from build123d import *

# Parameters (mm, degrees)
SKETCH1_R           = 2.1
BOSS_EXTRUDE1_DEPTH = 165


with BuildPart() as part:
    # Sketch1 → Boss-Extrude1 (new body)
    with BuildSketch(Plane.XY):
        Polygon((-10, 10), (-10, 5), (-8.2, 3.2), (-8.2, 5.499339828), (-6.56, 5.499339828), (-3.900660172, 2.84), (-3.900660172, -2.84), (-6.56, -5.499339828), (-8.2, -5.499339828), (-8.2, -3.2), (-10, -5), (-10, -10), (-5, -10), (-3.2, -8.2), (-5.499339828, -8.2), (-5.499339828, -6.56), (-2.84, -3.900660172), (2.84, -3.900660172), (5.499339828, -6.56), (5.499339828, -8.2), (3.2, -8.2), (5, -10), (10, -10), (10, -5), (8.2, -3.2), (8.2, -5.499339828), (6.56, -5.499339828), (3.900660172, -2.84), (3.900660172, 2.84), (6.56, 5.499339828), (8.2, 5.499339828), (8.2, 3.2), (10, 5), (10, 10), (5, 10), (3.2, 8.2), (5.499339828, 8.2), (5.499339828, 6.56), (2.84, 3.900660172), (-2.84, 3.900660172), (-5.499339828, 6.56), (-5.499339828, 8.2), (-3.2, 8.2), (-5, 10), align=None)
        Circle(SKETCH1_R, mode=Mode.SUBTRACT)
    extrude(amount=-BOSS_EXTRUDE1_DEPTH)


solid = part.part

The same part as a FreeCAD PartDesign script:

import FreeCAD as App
import Part
import Sketcher
Q = App.Units.Quantity


def add_polygon(sketch, points):
    """Adds a closed chain of lines whose ends are joined by coincident constraints."""
    first, n = sketch.GeometryCount, len(points)
    for a, b in zip(points, points[1:] + points[:1]):
        sketch.addGeometry(Part.LineSegment(App.Vector(*a, 0), App.Vector(*b, 0)), False)
    for i in range(n):
        sketch.addConstraint(Sketcher.Constraint("Coincident", first + i, 2, first + (i + 1) % n, 1))

doc = App.newDocument("Part")
body = doc.addObject("PartDesign::Body", "Body")

# Sketch on XY plane
sketch1 = doc.addObject("Sketcher::SketchObject", "Sketch")
body.addObject(sketch1)
sketch1.AttachmentSupport = (doc.XY_Plane, [""])
sketch1.MapMode = "FlatFace"
add_polygon(sketch1, [(-10, 10), (-10, 5), (-8.2, 3.2), (-8.2, 5.49934), (-6.56, 5.49934), (-3.90066, 2.84), (-3.90066, -2.84), (-6.56, -5.49934), (-8.2, -5.49934), (-8.2, -3.2), (-10, -5), (-10, -10), (-5, -10), (-3.2, -8.2), (-5.49934, -8.2), (-5.49934, -6.56), (-2.84, -3.90066), (2.84, -3.90066), (5.49934, -6.56), (5.49934, -8.2), (3.2, -8.2), (5, -10), (10, -10), (10, -5), (8.2, -3.2), (8.2, -5.49934), (6.56, -5.49934), (3.90066, -2.84), (3.90066, 2.84), (6.56, 5.49934), (8.2, 5.49934), (8.2, 3.2), (10, 5), (10, 10), (5, 10), (3.2, 8.2), (5.49934, 8.2), (5.49934, 6.56), (2.84, 3.90066), (-2.84, 3.90066), (-5.49934, 6.56), (-5.49934, 8.2), (-3.2, 8.2), (-5, 10)])  # lines 0-43
sketch1.addGeometry(Part.Circle(App.Vector(0, 0, 0), App.Vector(0, 0, 1), 2.1), False)  # 44
sketch1.addConstraint(Sketcher.Constraint("Vertical", 0))
sketch1.addConstraint(Sketcher.Constraint("Vertical", 2))
sketch1.addConstraint(Sketcher.Constraint("Horizontal", 3))
sketch1.addConstraint(Sketcher.Constraint("Vertical", 5))
sketch1.addConstraint(Sketcher.Constraint("Horizontal", 7))
sketch1.addConstraint(Sketcher.Constraint("Vertical", 8))
sketch1.addConstraint(Sketcher.Constraint("Vertical", 10))
sketch1.addConstraint(Sketcher.Constraint("Horizontal", 11))
sketch1.addConstraint(Sketcher.Constraint("Horizontal", 13))
sketch1.addConstraint(Sketcher.Constraint("Vertical", 14))
sketch1.addConstraint(Sketcher.Constraint("Horizontal", 16))
sketch1.addConstraint(Sketcher.Constraint("Vertical", 18))
sketch1.addConstraint(Sketcher.Constraint("Horizontal", 19))
sketch1.addConstraint(Sketcher.Constraint("Horizontal", 21))
sketch1.addConstraint(Sketcher.Constraint("Vertical", 22))
sketch1.addConstraint(Sketcher.Constraint("Vertical", 24))
sketch1.addConstraint(Sketcher.Constraint("Horizontal", 25))
sketch1.addConstraint(Sketcher.Constraint("Vertical", 27))
sketch1.addConstraint(Sketcher.Constraint("Horizontal", 29))
sketch1.addConstraint(Sketcher.Constraint("Vertical", 30))
sketch1.addConstraint(Sketcher.Constraint("Vertical", 32))
sketch1.addConstraint(Sketcher.Constraint("Horizontal", 33))
sketch1.addConstraint(Sketcher.Constraint("Horizontal", 35))
sketch1.addConstraint(Sketcher.Constraint("Vertical", 36))
sketch1.addConstraint(Sketcher.Constraint("Horizontal", 38))
sketch1.addConstraint(Sketcher.Constraint("Vertical", 40))
sketch1.addConstraint(Sketcher.Constraint("Horizontal", 41))
sketch1.addConstraint(Sketcher.Constraint("Horizontal", 43))
sketch1.addConstraint(Sketcher.Constraint("Coincident", 44, 3, -1, 1))
sketch1.addConstraint(Sketcher.Constraint("Symmetric", 0, 2, 22, 2, -1, 1))
sketch1.addConstraint(Sketcher.Constraint("Symmetric", 1, 2, 23, 2, -1, 1))
sketch1.addConstraint(Sketcher.Constraint("Symmetric", 3, 2, 25, 2, -1, 1))
sketch1.addConstraint(Sketcher.Constraint("Symmetric", 4, 2, 26, 2, -1, 1))
sketch1.addConstraint(Sketcher.Constraint("Symmetric", 6, 2, 28, 2, -1, 1))
sketch1.addConstraint(Sketcher.Constraint("Symmetric", 8, 2, 30, 2, -1, 1))
sketch1.addConstraint(Sketcher.Constraint("Symmetric", 9, 2, 31, 2, -1, 1))
sketch1.addConstraint(Sketcher.Constraint("Symmetric", 11, 2, 33, 2, -1, 1))
sketch1.addConstraint(Sketcher.Constraint("Symmetric", 12, 2, 34, 2, -1, 1))
sketch1.addConstraint(Sketcher.Constraint("Symmetric", 14, 2, 36, 2, -1, 1))
sketch1.addConstraint(Sketcher.Constraint("Symmetric", 15, 2, 37, 2, -1, 1))
sketch1.addConstraint(Sketcher.Constraint("Symmetric", 17, 2, 39, 2, -1, 1))
sketch1.addConstraint(Sketcher.Constraint("Symmetric", 19, 2, 41, 2, -1, 1))
sketch1.addConstraint(Sketcher.Constraint("Symmetric", 20, 2, 42, 2, -1, 1))
sketch1.addConstraint(Sketcher.Constraint("Symmetric", 14, 2, 17, 2, -2))
sketch1.addConstraint(Sketcher.Constraint("Symmetric", 12, 2, 19, 2, -2))
sketch1.addConstraint(Sketcher.Constraint("Symmetric", 11, 2, 20, 2, -2))
sketch1.addConstraint(Sketcher.Constraint("Symmetric", 9, 2, 22, 2, -2))
sketch1.addConstraint(Sketcher.Constraint("Symmetric", 8, 2, 23, 2, -2))
sketch1.addConstraint(Sketcher.Constraint("Symmetric", 6, 2, 25, 2, -2))
sketch1.addConstraint(Sketcher.Constraint("Parallel", 1, 4))
sketch1.addConstraint(Sketcher.Constraint("Perpendicular", 4, 6))
sketch1.addConstraint(Sketcher.Constraint("Parallel", 6, 9))
sketch1.addConstraint(Sketcher.Constraint("Parallel", 9, 12))
sketch1.addConstraint(Sketcher.Constraint("Parallel", 12, 15))
sketch1.addConstraint(Sketcher.Constraint("Perpendicular", 15, 17))
sketch1.addConstraint(Sketcher.Constraint("Perpendicular", 26, 28))
sketch1.addConstraint(Sketcher.Constraint("Perpendicular", 37, 39))
sketch1.addConstraint(Sketcher.Constraint("Equal", 43, 0))
sketch1.addConstraint(Sketcher.Constraint("Equal", 41, 2))
sketch1.addConstraint(Sketcher.Constraint("Equal", 38, 5))
sketch1.addConstraint(Sketcher.Constraint("Equal", 29, 14))
sketch1.addConstraint(Sketcher.Constraint("Equal", 9, 12))
sketch1.addConstraint(Sketcher.Constraint("Equal", 6, 15))
sketch1.addConstraint(Sketcher.Constraint("Diameter", 44, Q("4.2 mm")))
sketch1.addConstraint(Sketcher.Constraint("DistanceX", 11, 1, 11, 2, Q("5 mm")))
sketch1.addConstraint(Sketcher.Constraint("DistanceX", 0, 2, -1, 1, Q("10 mm")))
sketch1.addConstraint(Sketcher.Constraint("DistanceX", 3, 1, 3, 2, Q("1.64 mm")))
sketch1.addConstraint(Sketcher.Constraint("DistanceX", 16, 1, 16, 2, Q("5.68 mm")))
sketch1.addConstraint(Sketcher.Constraint("DistanceX", 1, 2, -1, 1, Q("8.2 mm")))
sketch1.addConstraint(Sketcher.Constraint("DistanceX", 13, 2, 13, 1, Q("2.29934 mm")))
pad1 = doc.addObject("PartDesign::Pad", "Pad")
body.addObject(pad1)
pad1.Profile = sketch1
pad1.Length = 165
pad1.Reversed = True

doc.recompute()
